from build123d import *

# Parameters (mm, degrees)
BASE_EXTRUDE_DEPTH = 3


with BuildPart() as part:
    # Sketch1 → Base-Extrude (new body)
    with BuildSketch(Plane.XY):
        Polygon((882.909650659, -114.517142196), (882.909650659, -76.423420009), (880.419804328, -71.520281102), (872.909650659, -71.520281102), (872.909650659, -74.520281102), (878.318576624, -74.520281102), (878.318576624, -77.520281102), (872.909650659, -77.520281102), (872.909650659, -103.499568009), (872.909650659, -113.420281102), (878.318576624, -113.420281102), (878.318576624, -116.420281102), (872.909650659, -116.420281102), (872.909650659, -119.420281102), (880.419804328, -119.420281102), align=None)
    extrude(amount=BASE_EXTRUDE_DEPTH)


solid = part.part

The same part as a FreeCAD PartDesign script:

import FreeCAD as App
import Part
import Sketcher
Q = App.Units.Quantity


def add_polygon(sketch, points):
    """Adds a closed chain of lines whose ends are joined by coincident constraints."""
    first, n = sketch.GeometryCount, len(points)
    for a, b in zip(points, points[1:] + points[:1]):
        sketch.addGeometry(Part.LineSegment(App.Vector(*a, 0), App.Vector(*b, 0)), False)
    for i in range(n):
        sketch.addConstraint(Sketcher.Constraint("Coincident", first + i, 2, first + (i + 1) % n, 1))

doc = App.newDocument("Part")
params = doc.addObject("Spreadsheet::Sheet", "Params")
for row, (alias, value) in enumerate([
    ("sketch1_height", "3 mm"),
    ("sketch1_height2", "35.9 mm"),
    ("pad1_length", "3 mm"),
], start=1):
    params.set(f"A{row}", alias)
    params.set(f"B{row}", "=" + value)
    params.setAlias(f"B{row}", alias)

body = doc.addObject("PartDesign::Body", "Body")

sketch1 = body.newObject("Sketcher::SketchObject", "Sketch")
sketch1.AttachmentSupport = (doc.getObject("XY_Plane"), [""])
sketch1.MapMode = "FlatFace"
add_polygon(sketch1, [(882.9, -114.5), (882.9, -76.4), (880.4, -71.5), (872.9, -71.5), (872.9, -74.5), (878.3, -74.5), (878.3, -77.5), (872.9, -77.5), (872.9, -113.4), (878.3, -113.4), (878.3, -116.4), (872.9, -116.4), (872.9, -119.4), (880.4, -119.4)])
sketch1.addConstraint([
    Sketcher.Constraint("Vertical", 0),
    Sketcher.Constraint("Horizontal", 2),
    Sketcher.Constraint("Vertical", 3),
    Sketcher.Constraint("Horizontal", 4),
    Sketcher.Constraint("Vertical", 5),
    Sketcher.Constraint("Horizontal", 6),
    Sketcher.Constraint("Vertical", 7),
    Sketcher.Constraint("Horizontal", 8),
    Sketcher.Constraint("Vertical", 9),
    Sketcher.Constraint("Horizontal", 10),
    Sketcher.Constraint("Vertical", 11),
    Sketcher.Constraint("Horizontal", 12),
    Sketcher.Constraint("Vertical", 3, 2, 6, 2),
    Sketcher.Constraint("Vertical", 5, 2, 8, 2),
    Sketcher.Constraint("Vertical", 7, 2, 10, 2),
    Sketcher.Constraint("Vertical", 1, 2, 12, 2),
    Sketcher.Constraint("Equal", 3, 5),
    Sketcher.Constraint("Equal", 5, 9),
    Sketcher.Constraint("Equal", 9, 11),
    Sketcher.Constraint("Equal", 1, 13),
    Sketcher.Constraint("DistanceY", 3, 2, 3, 1, Q("3 mm")),
    Sketcher.Constraint("DistanceY", 7, 2, 7, 1, Q("35.9 mm")),
    Sketcher.Constraint("DistanceX", 2, 2, 0, 2, Q("10 mm")),
    Sketcher.Constraint("Distance", 1, Q("5.4991 mm")),
    Sketcher.Constraint("DistanceX", 2, 2, 2, 1, Q("7.510154 mm")),
    Sketcher.Constraint("DistanceX", 4, 1, 4, 2, Q("5.408926 mm")),
    Sketcher.Constraint("DistanceX", -1, 1, 0, 2, Q("882.909651 mm")),
    Sketcher.Constraint("DistanceY", 0, 2, -1, 1, Q("76.42342 mm")),
])
sketch1.setExpression("Constraints[34]", "Params.sketch1_height")
sketch1.setExpression("Constraints[35]", "Params.sketch1_height2")
pad1 = body.newObject("PartDesign::Pad", "Pad")
pad1.Profile = sketch1
pad1.setExpression("Length", "Params.pad1_length")

doc.recompute()
